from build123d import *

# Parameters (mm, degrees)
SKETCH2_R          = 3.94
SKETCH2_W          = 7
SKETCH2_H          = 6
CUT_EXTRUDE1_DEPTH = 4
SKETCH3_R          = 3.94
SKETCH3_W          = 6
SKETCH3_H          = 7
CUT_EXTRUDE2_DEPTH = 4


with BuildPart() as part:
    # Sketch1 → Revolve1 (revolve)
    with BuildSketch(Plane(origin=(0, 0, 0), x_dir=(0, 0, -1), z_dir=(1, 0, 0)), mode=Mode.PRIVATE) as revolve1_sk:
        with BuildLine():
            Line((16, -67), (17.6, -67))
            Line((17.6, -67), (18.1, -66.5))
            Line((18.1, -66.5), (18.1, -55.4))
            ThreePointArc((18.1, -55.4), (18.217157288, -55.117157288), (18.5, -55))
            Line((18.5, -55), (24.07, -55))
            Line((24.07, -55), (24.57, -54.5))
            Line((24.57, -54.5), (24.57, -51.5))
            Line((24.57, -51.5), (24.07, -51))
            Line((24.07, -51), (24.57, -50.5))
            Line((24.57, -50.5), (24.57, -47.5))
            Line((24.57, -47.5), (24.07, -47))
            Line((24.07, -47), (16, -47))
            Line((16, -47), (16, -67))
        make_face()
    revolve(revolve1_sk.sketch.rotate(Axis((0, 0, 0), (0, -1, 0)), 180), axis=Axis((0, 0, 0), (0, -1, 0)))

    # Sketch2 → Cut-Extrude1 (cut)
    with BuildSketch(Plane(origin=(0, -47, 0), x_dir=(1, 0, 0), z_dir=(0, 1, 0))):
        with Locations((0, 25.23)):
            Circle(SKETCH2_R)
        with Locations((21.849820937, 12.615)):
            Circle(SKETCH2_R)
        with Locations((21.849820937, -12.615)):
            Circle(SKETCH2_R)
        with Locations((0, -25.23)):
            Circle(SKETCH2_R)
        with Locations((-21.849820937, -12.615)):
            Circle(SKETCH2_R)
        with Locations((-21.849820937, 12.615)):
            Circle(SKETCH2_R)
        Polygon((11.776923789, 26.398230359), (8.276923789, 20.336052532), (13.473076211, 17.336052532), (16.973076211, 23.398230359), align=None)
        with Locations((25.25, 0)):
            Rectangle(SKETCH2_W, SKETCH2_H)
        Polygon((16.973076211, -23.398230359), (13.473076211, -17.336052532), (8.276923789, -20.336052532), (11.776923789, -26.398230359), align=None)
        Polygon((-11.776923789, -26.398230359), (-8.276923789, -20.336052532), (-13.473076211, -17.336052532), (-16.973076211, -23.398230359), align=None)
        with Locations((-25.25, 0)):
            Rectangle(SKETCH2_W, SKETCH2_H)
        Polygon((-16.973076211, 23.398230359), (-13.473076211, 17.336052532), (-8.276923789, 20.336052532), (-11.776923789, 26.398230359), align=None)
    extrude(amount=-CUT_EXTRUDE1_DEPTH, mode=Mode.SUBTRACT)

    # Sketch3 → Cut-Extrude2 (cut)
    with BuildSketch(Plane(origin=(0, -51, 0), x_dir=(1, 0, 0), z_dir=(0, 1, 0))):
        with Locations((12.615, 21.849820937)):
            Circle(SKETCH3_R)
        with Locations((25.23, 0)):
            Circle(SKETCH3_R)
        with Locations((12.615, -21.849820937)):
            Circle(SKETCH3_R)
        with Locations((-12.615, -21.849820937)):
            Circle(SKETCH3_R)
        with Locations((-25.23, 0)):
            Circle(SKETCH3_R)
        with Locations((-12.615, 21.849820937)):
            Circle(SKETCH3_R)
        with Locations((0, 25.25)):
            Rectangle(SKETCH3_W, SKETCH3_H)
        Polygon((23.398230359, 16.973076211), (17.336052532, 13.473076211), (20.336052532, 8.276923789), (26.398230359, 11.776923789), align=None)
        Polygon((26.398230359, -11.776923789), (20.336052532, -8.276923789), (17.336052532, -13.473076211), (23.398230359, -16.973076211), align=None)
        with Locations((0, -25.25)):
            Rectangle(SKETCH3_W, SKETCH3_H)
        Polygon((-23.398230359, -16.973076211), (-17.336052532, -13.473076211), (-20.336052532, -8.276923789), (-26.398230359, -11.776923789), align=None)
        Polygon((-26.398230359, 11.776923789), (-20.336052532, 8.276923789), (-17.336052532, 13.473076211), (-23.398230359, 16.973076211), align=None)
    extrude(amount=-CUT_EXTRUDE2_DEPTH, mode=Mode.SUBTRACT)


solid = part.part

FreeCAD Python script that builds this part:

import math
import FreeCAD as App
import Part
import Sketcher

V = App.Vector
Q = App.Units.Quantity


def add_polygon(sketch, points):
    """Adds a closed chain of lines whose ends are joined by coincident constraints."""
    first, n = sketch.GeometryCount, len(points)
    for a, b in zip(points, points[1:] + points[:1]):
        sketch.addGeometry(Part.LineSegment(App.Vector(*a, 0), App.Vector(*b, 0)), False)
    for i in range(n):
        sketch.addConstraint(Sketcher.Constraint("Coincident", first + i, 2, first + (i + 1) % n, 1))

doc = App.newDocument("Part")
body = doc.addObject("PartDesign::Body", "Body")

# Sketch on YZ plane
sketch1 = body.newObject("Sketcher::SketchObject", "Sketch")
sketch1.AttachmentSupport = (doc.getObject("YZ_Plane"), [""])
sketch1.MapMode = "FlatFace"
sketch1.addGeometry(Part.LineSegment(V(-67, -16, 0), V(-67, -17.6, 0)), False)
sketch1.addGeometry(Part.LineSegment(V(-67, -17.6, 0), V(-66.5, -18.1, 0)), False)
sketch1.addGeometry(Part.LineSegment(V(-66.5, -18.1, 0), V(-55.4, -18.1, 0)), False)
sketch1.addGeometry(Part.ArcOfCircle(Part.Circle(V(-55.4, -18.5, 0), V(0, 0, 1), 0.4), math.radians(0), math.radians(90)), False)
sketch1.addGeometry(Part.LineSegment(V(-55, -18.5, 0), V(-55, -24.07, 0)), False)
sketch1.addGeometry(Part.LineSegment(V(-55, -24.07, 0), V(-54.5, -24.57, 0)), False)
sketch1.addGeometry(Part.LineSegment(V(-54.5, -24.57, 0), V(-51.5, -24.57, 0)), False)
sketch1.addGeometry(Part.LineSegment(V(-51.5, -24.57, 0), V(-51, -24.07, 0)), False)
sketch1.addGeometry(Part.LineSegment(V(-51, -24.07, 0), V(-50.5, -24.57, 0)), False)
sketch1.addGeometry(Part.LineSegment(V(-50.5, -24.57, 0), V(-47.5, -24.57, 0)), False)
sketch1.addGeometry(Part.LineSegment(V(-47.5, -24.57, 0), V(-47, -24.07, 0)), False)
sketch1.addGeometry(Part.LineSegment(V(-47, -24.07, 0), V(-47, -16, 0)), False)
sketch1.addGeometry(Part.LineSegment(V(-47, -16, 0), V(-67, -16, 0)), False)
sketch1.addConstraint(Sketcher.Constraint("Coincident", 0, 2, 1, 1))
sketch1.addConstraint(Sketcher.Constraint("Coincident", 1, 2, 2, 1))
sketch1.addConstraint(Sketcher.Constraint("Tangent", 2, 2, 3, 2))
sketch1.addConstraint(Sketcher.Constraint("Tangent", 3, 1, 4, 1))
sketch1.addConstraint(Sketcher.Constraint("Coincident", 4, 2, 5, 1))
sketch1.addConstraint(Sketcher.Constraint("Coincident", 5, 2, 6, 1))
sketch1.addConstraint(Sketcher.Constraint("Coincident", 6, 2, 7, 1))
sketch1.addConstraint(Sketcher.Constraint("Coincident", 7, 2, 8, 1))
sketch1.addConstraint(Sketcher.Constraint("Coincident", 8, 2, 9, 1))
sketch1.addConstraint(Sketcher.Constraint("Coincident", 9, 2, 10, 1))
sketch1.addConstraint(Sketcher.Constraint("Coincident", 10, 2, 11, 1))
sketch1.addConstraint(Sketcher.Constraint("Coincident", 11, 2, 12, 1))
sketch1.addConstraint(Sketcher.Constraint("Coincident", 12, 2, 0, 1))
sketch1.addConstraint(Sketcher.Constraint("Vertical", 0))
sketch1.addConstraint(Sketcher.Constraint("Horizontal", 2))
sketch1.addConstraint(Sketcher.Constraint("Vertical", 4))
sketch1.addConstraint(Sketcher.Constraint("Horizontal", 6))
sketch1.addConstraint(Sketcher.Constraint("Horizontal", 9))
sketch1.addConstraint(Sketcher.Constraint("Vertical", 11))
sketch1.addConstraint(Sketcher.Constraint("Horizontal", 12))
sketch1.addConstraint(Sketcher.Constraint("Parallel", 1, 5))
sketch1.addConstraint(Sketcher.Constraint("Perpendicular", 5, 7))
sketch1.addConstraint(Sketcher.Constraint("Perpendicular", 7, 8))
sketch1.addConstraint(Sketcher.Constraint("Perpendicular", 8, 10))
sketch1.addConstraint(Sketcher.Constraint("Horizontal", 4, 2, 7, 2))
sketch1.addConstraint(Sketcher.Constraint("Horizontal", 6, 2, 8, 2))
sketch1.addConstraint(Sketcher.Constraint("Horizontal", 7, 2, 10, 2))
sketch1.addConstraint(Sketcher.Constraint("Equal", 6, 9))
sketch1.addConstraint(Sketcher.Constraint("Equal", 1, 5))
sketch1.addConstraint(Sketcher.Constraint("Equal", 5, 7))
sketch1.addConstraint(Sketcher.Constraint("Radius", 3, 0.4))
sketch1.addConstraint(Sketcher.Constraint("DistanceX", 6, 1, 6, 2, 3.0))
sketch1.addConstraint(Sketcher.Constraint("DistanceX", 12, 2, 12, 1, 20.0))
sketch1.addConstraint(Sketcher.Constraint("DistanceX", 2, 1, 2, 2, 11.1))
sketch1.addConstraint(Sketcher.Constraint("DistanceY", 0, 2, 0, 1, 1.6))
sketch1.addConstraint(Sketcher.Constraint("DistanceX", 0, 2, -1, 1, 67.0))
sketch1.addConstraint(Sketcher.Constraint("DistanceY", 11, 2, -1, 1, 16.0))
sketch1.addConstraint(Sketcher.Constraint("DistanceY", 4, 2, 4, 1, 5.57))
revolution = body.newObject("PartDesign::Revolution", "Revolution")
revolution.Profile = sketch1
revolution.ReferenceAxis = (sketch1, ["H_Axis"])
revolution.Angle = 360

# Sketch on XZ plane
sketch2 = body.newObject("Sketcher::SketchObject", "Sketch001")
sketch2.AttachmentSupport = (doc.getObject("XZ_Plane"), [""])
sketch2.MapMode = "FlatFace"
sketch2.AttachmentOffset = App.Placement(V(0, 0, 47), App.Rotation())
sketch2.addGeometry(Part.Circle(V(0, -25.23, 0), V(0, 0, 1), 3.94), False)  # 0
sketch2.addGeometry(Part.Circle(V(21.849821, -12.615, 0), V(0, 0, 1), 3.94), False)  # 1
sketch2.addGeometry(Part.Circle(V(21.849821, 12.615, 0), V(0, 0, 1), 3.94), False)  # 2
sketch2.addGeometry(Part.Circle(V(0, 25.23, 0), V(0, 0, 1), 3.94), False)  # 3
sketch2.addGeometry(Part.Circle(V(-21.849821, 12.615, 0), V(0, 0, 1), 3.94), False)  # 4
sketch2.addGeometry(Part.Circle(V(-21.849821, -12.615, 0), V(0, 0, 1), 3.94), False)  # 5
add_polygon(sketch2, [(11.776924, -26.39823), (8.276924, -20.336053), (13.473076, -17.336053), (16.973076, -23.39823)])  # lines 6-9
add_polygon(sketch2, [(21.75, -3), (21.75, 3), (28.75, 3), (28.75, -3)])  # lines 10-13
add_polygon(sketch2, [(16.973076, 23.39823), (13.473076, 17.336053), (8.276924, 20.336053), (11.776924, 26.39823)])  # lines 14-17
add_polygon(sketch2, [(-11.776924, 26.39823), (-8.276924, 20.336053), (-13.473076, 17.336053), (-16.973076, 23.39823)])  # lines 18-21
add_polygon(sketch2, [(-28.75, -3), (-28.75, 3), (-21.75, 3), (-21.75, -3)])  # lines 22-25
add_polygon(sketch2, [(-16.973076, -23.39823), (-13.473076, -17.336053), (-8.276924, -20.336053), (-11.776924, -26.39823)])  # lines 26-29
sketch2.addConstraint(Sketcher.Constraint("Vertical", 10))
sketch2.addConstraint(Sketcher.Constraint("Horizontal", 11))
sketch2.addConstraint(Sketcher.Constraint("Vertical", 12))
sketch2.addConstraint(Sketcher.Constraint("Horizontal", 13))
sketch2.addConstraint(Sketcher.Constraint("Vertical", 22))
sketch2.addConstraint(Sketcher.Constraint("Horizontal", 23))
sketch2.addConstraint(Sketcher.Constraint("Vertical", 24))
sketch2.addConstraint(Sketcher.Constraint("Horizontal", 25))
sketch2.addConstraint(Sketcher.Constraint("Equal", 0, 1))
sketch2.addConstraint(Sketcher.Constraint("Equal", 1, 2))
sketch2.addConstraint(Sketcher.Constraint("Equal", 2, 3))
sketch2.addConstraint(Sketcher.Constraint("Equal", 3, 4))
sketch2.addConstraint(Sketcher.Constraint("Equal", 4, 5))
sketch2.addConstraint(Sketcher.Constraint("Symmetric", 0, 3, 3, 3, -1, 1))
sketch2.addConstraint(Sketcher.Constraint("Symmetric", 1, 3, 4, 3, -1, 1))
sketch2.addConstraint(Sketcher.Constraint("Symmetric", 2, 3, 5, 3, -1, 1))
sketch2.addConstraint(Sketcher.Constraint("Symmetric", 6, 2, 18, 2, -1, 1))
sketch2.addConstraint(Sketcher.Constraint("Symmetric", 7, 2, 19, 2, -1, 1))
sketch2.addConstraint(Sketcher.Constraint("Symmetric", 8, 2, 20, 2, -1, 1))
sketch2.addConstraint(Sketcher.Constraint("Symmetric", 9, 2, 21, 2, -1, 1))
sketch2.addConstraint(Sketcher.Constraint("Symmetric", 12, 2, 22, 2, -1, 1))
sketch2.addConstraint(Sketcher.Constraint("Symmetric", 10, 2, 24, 2, -1, 1))
sketch2.addConstraint(Sketcher.Constraint("Symmetric", 14, 2, 26, 2, -1, 1))
sketch2.addConstraint(Sketcher.Constraint("Symmetric", 15, 2, 27, 2, -1, 1))
sketch2.addConstraint(Sketcher.Constraint("Symmetric", 16, 2, 28, 2, -1, 1))
sketch2.addConstraint(Sketcher.Constraint("Symmetric", 17, 2, 29, 2, -1, 1))
sketch2.addConstraint(Sketcher.Constraint("Symmetric", 2, 3, 4, 3, -2))
sketch2.addConstraint(Sketcher.Constraint("Symmetric", 15, 2, 18, 2, -2))
sketch2.addConstraint(Sketcher.Constraint("Symmetric", 14, 2, 19, 2, -2))
sketch2.addConstraint(Sketcher.Constraint("Symmetric", 17, 2, 20, 2, -2))
sketch2.addConstraint(Sketcher.Constraint("Symmetric", 16, 2, 21, 2, -2))
sketch2.addConstraint(Sketcher.Constraint("PointOnObject", 0, 3, -2))
sketch2.addConstraint(Sketcher.Constraint("Perpendicular", 6, 7))
sketch2.addConstraint(Sketcher.Constraint("Perpendicular", 7, 8))
sketch2.addConstraint(Sketcher.Constraint("Perpendicular", 8, 9))
sketch2.addConstraint(Sketcher.Constraint("Horizontal", 11, 2, 22, 2))
sketch2.addConstraint(Sketcher.Constraint("Diameter", 0, 7.88))
sketch2.addConstraint(Sketcher.Constraint("DistanceX", 11, 1, 11, 2, 7.0))
sketch2.addConstraint(Sketcher.Constraint("DistanceY", 10, 1, 10, 2, 6.0))
sketch2.addConstraint(Sketcher.Constraint("Angle", 6, Q("120 deg")))
sketch2.addConstraint(Sketcher.Constraint("Distance", 6, 7.0))
sketch2.addConstraint(Sketcher.Constraint("Distance", 7, 6.0))
sketch2.addConstraint(Sketcher.Constraint("DistanceY", 0, 3, -1, 1, 25.23))
sketch2.addConstraint(Sketcher.Constraint("DistanceX", -1, 1, 10, 2, 21.75))
sketch2.addConstraint(Sketcher.Constraint("DistanceY", 1, 3, 2, 3, 25.23))
sketch2.addConstraint(Sketcher.Constraint("DistanceX", 18, 2, 14, 2, 21.75))
sketch2.addConstraint(Sketcher.Constraint("DistanceX", -1, 1, 1, 3, 21.849821))
sketch2.addConstraint(Sketcher.Constraint("DistanceY", 8, 2, -1, 1, 23.39823))
pocket1 = body.newObject("PartDesign::Pocket", "Pocket")
pocket1.Profile = sketch2
pocket1.Length = 4
pocket1.Reversed = True

# Sketch on XZ plane
sketch3 = body.newObject("Sketcher::SketchObject", "Sketch002")
sketch3.AttachmentSupport = (doc.getObject("XZ_Plane"), [""])
sketch3.MapMode = "FlatFace"
sketch3.AttachmentOffset = App.Placement(V(0, 0, 51), App.Rotation())
sketch3.addGeometry(Part.Circle(V(12.615, -21.849821, 0), V(0, 0, 1), 3.94), False)  # 0
sketch3.addGeometry(Part.Circle(V(25.23, 0, 0), V(0, 0, 1), 3.94), False)  # 1
sketch3.addGeometry(Part.Circle(V(12.615, 21.849821, 0), V(0, 0, 1), 3.94), False)  # 2
sketch3.addGeometry(Part.Circle(V(-12.615, 21.849821, 0), V(0, 0, 1), 3.94), False)  # 3
sketch3.addGeometry(Part.Circle(V(-25.23, 0, 0), V(0, 0, 1), 3.94), False)  # 4
sketch3.addGeometry(Part.Circle(V(-12.615, -21.849821, 0), V(0, 0, 1), 3.94), False)  # 5
add_polygon(sketch3, [(-3, -28.75), (-3, -21.75), (3, -21.75), (3, -28.75)])  # lines 6-9
add_polygon(sketch3, [(23.39823, -16.973076), (17.336053, -13.473076), (20.336053, -8.276924), (26.39823, -11.776924)])  # lines 10-13
add_polygon(sketch3, [(26.39823, 11.776924), (20.336053, 8.276924), (17.336053, 13.473076), (23.39823, 16.973076)])  # lines 14-17
add_polygon(sketch3, [(-3, 21.75), (-3, 28.75), (3, 28.75), (3, 21.75)])  # lines 18-21
add_polygon(sketch3, [(-23.39823, 16.973076), (-17.336053, 13.473076), (-20.336053, 8.276924), (-26.39823, 11.776924)])  # lines 22-25
add_polygon(sketch3, [(-26.39823, -11.776924), (-20.336053, -8.276924), (-17.336053, -13.473076), (-23.39823, -16.973076)])  # lines 26-29
sketch3.addConstraint(Sketcher.Constraint("Vertical", 6))
sketch3.addConstraint(Sketcher.Constraint("Horizontal", 7))
sketch3.addConstraint(Sketcher.Constraint("Vertical", 8))
sketch3.addConstraint(Sketcher.Constraint("Horizontal", 9))
sketch3.addConstraint(Sketcher.Constraint("Vertical", 18))
sketch3.addConstraint(Sketcher.Constraint("Horizontal", 19))
sketch3.addConstraint(Sketcher.Constraint("Vertical", 20))
sketch3.addConstraint(Sketcher.Constraint("Horizontal", 21))
sketch3.addConstraint(Sketcher.Constraint("Equal", 0, 1))
sketch3.addConstraint(Sketcher.Constraint("Equal", 1, 2))
sketch3.addConstraint(Sketcher.Constraint("Equal", 2, 3))
sketch3.addConstraint(Sketcher.Constraint("Equal", 3, 4))
sketch3.addConstraint(Sketcher.Constraint("Equal", 4, 5))
sketch3.addConstraint(Sketcher.Constraint("Symmetric", 0, 3, 3, 3, -1, 1))
sketch3.addConstraint(Sketcher.Constraint("Symmetric", 1, 3, 4, 3, -1, 1))
sketch3.addConstraint(Sketcher.Constraint("Symmetric", 2, 3, 5, 3, -1, 1))
sketch3.addConstraint(Sketcher.Constraint("Symmetric", 8, 2, 18, 2, -1, 1))
sketch3.addConstraint(Sketcher.Constraint("Symmetric", 6, 2, 20, 2, -1, 1))
sketch3.addConstraint(Sketcher.Constraint("Symmetric", 10, 2, 22, 2, -1, 1))
sketch3.addConstraint(Sketcher.Constraint("Symmetric", 11, 2, 23, 2, -1, 1))
sketch3.addConstraint(Sketcher.Constraint("Symmetric", 12, 2, 24, 2, -1, 1))
sketch3.addConstraint(Sketcher.Constraint("Symmetric", 13, 2, 25, 2, -1, 1))
sketch3.addConstraint(Sketcher.Constraint("Symmetric", 14, 2, 26, 2, -1, 1))
sketch3.addConstraint(Sketcher.Constraint("Symmetric", 15, 2, 27, 2, -1, 1))
sketch3.addConstraint(Sketcher.Constraint("Symmetric", 16, 2, 28, 2, -1, 1))
sketch3.addConstraint(Sketcher.Constraint("Symmetric", 17, 2, 29, 2, -1, 1))
sketch3.addConstraint(Sketcher.Constraint("Symmetric", 2, 3, 3, 3, -2))
sketch3.addConstraint(Sketcher.Constraint("Symmetric", 15, 2, 22, 2, -2))
sketch3.addConstraint(Sketcher.Constraint("Symmetric", 14, 2, 23, 2, -2))
sketch3.addConstraint(Sketcher.Constraint("Symmetric", 17, 2, 24, 2, -2))
sketch3.addConstraint(Sketcher.Constraint("Symmetric", 16, 2, 25, 2, -2))
sketch3.addConstraint(Sketcher.Constraint("PointOnObject", 1, 3, -1))
sketch3.addConstraint(Sketcher.Constraint("Perpendicular", 10, 11))
sketch3.addConstraint(Sketcher.Constraint("Perpendicular", 11, 12))
sketch3.addConstraint(Sketcher.Constraint("Perpendicular", 12, 13))
sketch3.addConstraint(Sketcher.Constraint("Vertical", 9, 2, 18, 2))
sketch3.addConstraint(Sketcher.Constraint("Diameter", 0, 7.88))
sketch3.addConstraint(Sketcher.Constraint("DistanceX", 7, 1, 7, 2, 6.0))
sketch3.addConstraint(Sketcher.Constraint("DistanceY", 6, 1, 6, 2, 7.0))
sketch3.addConstraint(Sketcher.Constraint("Angle", 10, Q("150 deg")))
sketch3.addConstraint(Sketcher.Constraint("Distance", 10, 7.0))
sketch3.addConstraint(Sketcher.Constraint("Distance", 11, 6.0))
sketch3.addConstraint(Sketcher.Constraint("DistanceX", -1, 1, 1, 3, 25.23))
sketch3.addConstraint(Sketcher.Constraint("DistanceY", 6, 2, -1, 1, 21.75))
sketch3.addConstraint(Sketcher.Constraint("DistanceX", 3, 3, 2, 3, 25.23))
sketch3.addConstraint(Sketcher.Constraint("DistanceY", 10, 2, 14, 2, 21.75))
sketch3.addConstraint(Sketcher.Constraint("DistanceY", 0, 3, -1, 1, 21.849821))
sketch3.addConstraint(Sketcher.Constraint("DistanceX", -1, 1, 12, 2, 26.39823))
pocket2 = body.newObject("PartDesign::Pocket", "Pocket001")
pocket2.Profile = sketch3
pocket2.Length = 4
pocket2.Reversed = True

doc.recompute()
